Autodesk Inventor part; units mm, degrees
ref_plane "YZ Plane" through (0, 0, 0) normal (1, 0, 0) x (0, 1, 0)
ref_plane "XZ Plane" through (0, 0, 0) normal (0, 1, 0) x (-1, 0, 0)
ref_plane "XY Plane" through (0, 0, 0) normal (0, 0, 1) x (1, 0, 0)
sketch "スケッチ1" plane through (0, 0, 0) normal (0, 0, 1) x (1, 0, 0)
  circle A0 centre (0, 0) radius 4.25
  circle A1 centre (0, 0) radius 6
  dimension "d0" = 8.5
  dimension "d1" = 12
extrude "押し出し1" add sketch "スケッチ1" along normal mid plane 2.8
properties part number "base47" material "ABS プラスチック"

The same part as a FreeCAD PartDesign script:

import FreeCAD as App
import Part
import Sketcher
from FreeCAD import Vector

doc = App.newDocument("Part")
body = doc.addObject("PartDesign::Body", "Body")

sketch1 = body.newObject("Sketcher::SketchObject", "Sketch")
sketch1.AttachmentSupport = (doc.getObject("XY_Plane"), [""])
sketch1.MapMode = "FlatFace"
sketch1.addGeometry([
    Part.Circle(Vector(0, 0, 0), Vector(0, 0, 1), 6),
    Part.Circle(Vector(0, 0, 0), Vector(0, 0, 1), 4.2),
], False)
sketch1.addConstraint([
    Sketcher.Constraint("Coincident", 0, 3, -1, 1),
    Sketcher.Constraint("Coincident", 1, 3, -1, 1),
    Sketcher.Constraint("Diameter", 0, 12.0),
    Sketcher.Constraint("Diameter", 1, 8.5),
])
pad1 = body.newObject("PartDesign::Pad", "Pad")
pad1.Profile = sketch1
pad1.Length = 2.8
pad1.Midplane = True

doc.recompute()
